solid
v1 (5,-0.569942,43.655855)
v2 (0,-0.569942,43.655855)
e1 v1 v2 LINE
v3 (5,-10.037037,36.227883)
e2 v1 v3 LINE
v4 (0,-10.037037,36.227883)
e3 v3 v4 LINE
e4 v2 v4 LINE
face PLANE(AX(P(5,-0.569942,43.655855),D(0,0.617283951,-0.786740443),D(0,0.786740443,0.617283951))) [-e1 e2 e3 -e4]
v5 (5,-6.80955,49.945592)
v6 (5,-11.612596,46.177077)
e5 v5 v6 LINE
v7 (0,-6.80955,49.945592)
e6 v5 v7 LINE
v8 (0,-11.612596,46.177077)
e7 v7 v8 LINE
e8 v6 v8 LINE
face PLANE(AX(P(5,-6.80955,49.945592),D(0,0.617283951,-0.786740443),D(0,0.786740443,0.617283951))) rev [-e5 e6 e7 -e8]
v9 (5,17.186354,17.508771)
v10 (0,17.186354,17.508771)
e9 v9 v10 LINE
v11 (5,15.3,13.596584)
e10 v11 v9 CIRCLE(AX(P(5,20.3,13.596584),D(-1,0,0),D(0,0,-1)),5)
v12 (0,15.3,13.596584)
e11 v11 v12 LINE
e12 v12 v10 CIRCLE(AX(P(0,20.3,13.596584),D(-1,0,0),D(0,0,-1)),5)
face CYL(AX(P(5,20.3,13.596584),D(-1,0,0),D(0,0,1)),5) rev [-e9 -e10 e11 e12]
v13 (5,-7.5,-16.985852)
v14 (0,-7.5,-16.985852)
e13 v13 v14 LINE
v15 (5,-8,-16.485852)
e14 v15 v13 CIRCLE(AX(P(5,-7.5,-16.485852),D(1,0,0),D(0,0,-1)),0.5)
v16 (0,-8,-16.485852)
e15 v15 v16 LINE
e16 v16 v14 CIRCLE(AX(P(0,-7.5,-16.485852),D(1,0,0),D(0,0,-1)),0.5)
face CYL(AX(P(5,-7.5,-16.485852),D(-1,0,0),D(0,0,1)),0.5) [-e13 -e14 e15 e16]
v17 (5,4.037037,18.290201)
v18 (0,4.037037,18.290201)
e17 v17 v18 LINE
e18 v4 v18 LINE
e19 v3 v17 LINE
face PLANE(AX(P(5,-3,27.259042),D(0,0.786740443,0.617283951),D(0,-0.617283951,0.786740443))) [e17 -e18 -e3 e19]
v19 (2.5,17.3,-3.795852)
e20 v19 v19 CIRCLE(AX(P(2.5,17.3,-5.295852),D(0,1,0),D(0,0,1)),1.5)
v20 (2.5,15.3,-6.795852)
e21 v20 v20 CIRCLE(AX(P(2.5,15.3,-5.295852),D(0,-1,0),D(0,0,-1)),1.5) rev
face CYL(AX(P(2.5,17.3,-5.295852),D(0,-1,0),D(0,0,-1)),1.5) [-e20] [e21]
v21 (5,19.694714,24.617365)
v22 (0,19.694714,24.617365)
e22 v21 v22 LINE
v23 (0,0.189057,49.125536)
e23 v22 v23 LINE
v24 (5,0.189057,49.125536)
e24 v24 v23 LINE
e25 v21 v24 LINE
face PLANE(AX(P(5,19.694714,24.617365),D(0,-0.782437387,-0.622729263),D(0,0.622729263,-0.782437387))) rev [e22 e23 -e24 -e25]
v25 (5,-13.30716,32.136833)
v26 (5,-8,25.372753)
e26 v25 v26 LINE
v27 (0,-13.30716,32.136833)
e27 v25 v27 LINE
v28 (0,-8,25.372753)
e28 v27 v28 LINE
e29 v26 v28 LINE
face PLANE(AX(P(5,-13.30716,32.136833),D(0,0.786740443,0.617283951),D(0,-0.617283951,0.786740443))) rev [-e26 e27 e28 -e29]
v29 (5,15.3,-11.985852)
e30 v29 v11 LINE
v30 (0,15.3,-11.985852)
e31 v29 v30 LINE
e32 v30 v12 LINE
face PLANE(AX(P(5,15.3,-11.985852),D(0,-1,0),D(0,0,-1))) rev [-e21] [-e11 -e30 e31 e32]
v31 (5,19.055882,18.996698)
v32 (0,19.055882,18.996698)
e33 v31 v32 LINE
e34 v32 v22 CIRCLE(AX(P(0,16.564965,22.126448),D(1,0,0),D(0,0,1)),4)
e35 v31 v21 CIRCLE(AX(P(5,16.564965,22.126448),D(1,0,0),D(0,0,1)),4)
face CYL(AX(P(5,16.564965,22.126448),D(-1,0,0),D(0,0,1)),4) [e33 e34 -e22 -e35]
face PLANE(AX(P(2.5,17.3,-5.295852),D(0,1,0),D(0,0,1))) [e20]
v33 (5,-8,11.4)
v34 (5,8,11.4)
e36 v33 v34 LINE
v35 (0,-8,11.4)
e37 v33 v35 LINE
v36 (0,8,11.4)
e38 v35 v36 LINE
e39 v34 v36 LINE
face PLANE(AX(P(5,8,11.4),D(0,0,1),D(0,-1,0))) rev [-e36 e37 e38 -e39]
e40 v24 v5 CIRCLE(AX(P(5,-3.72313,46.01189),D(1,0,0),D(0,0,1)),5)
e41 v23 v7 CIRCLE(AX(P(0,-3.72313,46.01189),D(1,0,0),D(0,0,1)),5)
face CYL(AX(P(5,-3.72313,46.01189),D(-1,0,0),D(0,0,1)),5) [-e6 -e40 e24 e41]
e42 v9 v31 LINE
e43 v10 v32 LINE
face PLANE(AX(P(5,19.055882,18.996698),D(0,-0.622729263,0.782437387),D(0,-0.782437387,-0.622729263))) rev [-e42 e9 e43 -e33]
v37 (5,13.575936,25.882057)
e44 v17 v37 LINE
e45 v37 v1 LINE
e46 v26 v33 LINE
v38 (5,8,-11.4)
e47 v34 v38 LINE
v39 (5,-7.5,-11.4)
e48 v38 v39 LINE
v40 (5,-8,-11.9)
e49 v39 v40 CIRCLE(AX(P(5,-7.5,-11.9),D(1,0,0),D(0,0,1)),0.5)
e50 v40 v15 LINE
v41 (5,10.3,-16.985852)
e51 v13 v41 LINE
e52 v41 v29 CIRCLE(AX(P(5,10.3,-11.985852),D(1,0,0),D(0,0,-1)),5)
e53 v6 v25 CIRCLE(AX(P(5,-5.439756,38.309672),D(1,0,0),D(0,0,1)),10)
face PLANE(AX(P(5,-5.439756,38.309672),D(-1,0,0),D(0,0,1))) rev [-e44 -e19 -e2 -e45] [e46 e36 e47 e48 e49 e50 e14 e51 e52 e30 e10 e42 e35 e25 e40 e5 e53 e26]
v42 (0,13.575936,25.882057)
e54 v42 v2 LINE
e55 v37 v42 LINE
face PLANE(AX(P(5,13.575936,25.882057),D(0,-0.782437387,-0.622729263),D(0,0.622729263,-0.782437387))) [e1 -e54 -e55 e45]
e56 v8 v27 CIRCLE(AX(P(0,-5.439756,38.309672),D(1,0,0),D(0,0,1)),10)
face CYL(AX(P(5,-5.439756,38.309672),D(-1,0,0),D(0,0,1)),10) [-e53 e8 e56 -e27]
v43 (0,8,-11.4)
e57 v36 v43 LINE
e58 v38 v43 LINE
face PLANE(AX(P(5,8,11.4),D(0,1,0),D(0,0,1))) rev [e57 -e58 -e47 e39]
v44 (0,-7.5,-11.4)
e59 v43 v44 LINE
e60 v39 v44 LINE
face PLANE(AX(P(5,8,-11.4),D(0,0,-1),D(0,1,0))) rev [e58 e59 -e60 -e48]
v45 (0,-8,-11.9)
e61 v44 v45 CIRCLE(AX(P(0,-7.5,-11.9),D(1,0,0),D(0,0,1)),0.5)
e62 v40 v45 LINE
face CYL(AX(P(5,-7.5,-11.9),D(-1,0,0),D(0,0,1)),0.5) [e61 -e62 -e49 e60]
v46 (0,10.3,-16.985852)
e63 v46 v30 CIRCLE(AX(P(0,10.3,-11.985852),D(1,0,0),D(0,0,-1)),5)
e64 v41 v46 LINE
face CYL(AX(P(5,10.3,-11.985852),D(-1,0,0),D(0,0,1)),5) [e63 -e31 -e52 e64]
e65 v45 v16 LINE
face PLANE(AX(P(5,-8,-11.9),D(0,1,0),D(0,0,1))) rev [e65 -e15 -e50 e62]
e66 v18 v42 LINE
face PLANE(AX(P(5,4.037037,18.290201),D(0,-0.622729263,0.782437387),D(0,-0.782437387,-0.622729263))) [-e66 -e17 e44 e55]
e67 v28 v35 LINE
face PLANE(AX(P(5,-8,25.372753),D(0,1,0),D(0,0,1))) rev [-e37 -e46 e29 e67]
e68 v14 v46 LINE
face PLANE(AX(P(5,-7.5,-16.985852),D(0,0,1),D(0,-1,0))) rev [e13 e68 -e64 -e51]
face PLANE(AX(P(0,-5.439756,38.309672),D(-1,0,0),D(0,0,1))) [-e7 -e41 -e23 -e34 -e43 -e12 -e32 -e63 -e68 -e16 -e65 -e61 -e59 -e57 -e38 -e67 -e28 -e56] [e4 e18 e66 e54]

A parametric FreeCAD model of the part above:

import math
import FreeCAD as App
import Part
import Sketcher
from FreeCAD import Vector

doc = App.newDocument("Part")
params = doc.addObject("Spreadsheet::Sheet", "Params")
for row, (alias, value) in enumerate([
    ("sketch1_radius", "5 mm"),
    ("sketch1_radius2", "4 mm"),
    ("sketch1_radius3", "10 mm"),
    ("sketch1_radius4", "0.5 mm"),
    ("sketch1_width", "16 mm"),
    ("pad1_length", "5 mm"),
    ("sketch2_diameter", "3 mm"),
    ("pad2_length", "2 mm"),
], start=1):
    params.set(f"A{row}", alias)
    params.set(f"B{row}", "=" + value)
    params.setAlias(f"B{row}", alias)

body = doc.addObject("PartDesign::Body", "Body")

sketch1 = body.newObject("Sketcher::SketchObject", "Sketch")
sketch1.AttachmentSupport = (doc.getObject("YZ_Plane"), [""])
sketch1.MapMode = "FlatFace"
sketch1.addGeometry(Part.LineSegment(Vector(-8, -11.9, 0), Vector(-8, -16.49, 0)), False)
sketch1.addGeometry(Part.ArcOfCircle(Part.Circle(Vector(-7.5, -16.49, 0), Vector(0, 0, 1), 0.5), math.radians(180), math.radians(270)), False)
sketch1.addGeometry(Part.LineSegment(Vector(-7.5, -16.99, 0), Vector(10.3, -16.99, 0)), False)
sketch1.addGeometry(Part.ArcOfCircle(Part.Circle(Vector(10.3, -11.99, 0), Vector(0, 0, 1), 5), math.radians(-90), math.radians(0)), False)
sketch1.addGeometry(Part.LineSegment(Vector(15.3, -11.99, 0), Vector(15.3, 13.6, 0)), False)
sketch1.addGeometry(Part.ArcOfCircle(Part.Circle(Vector(20.3, 13.6, 0), Vector(0, 0, 1), 5), math.radians(129), math.radians(180)), False)
sketch1.addGeometry(Part.LineSegment(Vector(17.19, 17.51, 0), Vector(19.06, 19, 0)), False)
sketch1.addGeometry(Part.ArcOfCircle(Part.Circle(Vector(16.56, 22.13, 0), Vector(0, 0, 1), 4), math.radians(-51), math.radians(39)), False)
sketch1.addGeometry(Part.LineSegment(Vector(19.69, 24.62, 0), Vector(0.19, 49.13, 0)), False)
sketch1.addGeometry(Part.ArcOfCircle(Part.Circle(Vector(-3.72, 46.01, 0), Vector(0, 0, 1), 5), math.radians(39), math.radians(128)), False)
sketch1.addGeometry(Part.LineSegment(Vector(-6.81, 49.95, 0), Vector(-11.61, 46.18, 0)), False)
sketch1.addGeometry(Part.ArcOfCircle(Part.Circle(Vector(-5.44, 38.31, 0), Vector(0, 0, 1), 10), math.radians(128), math.radians(218)), False)
sketch1.addGeometry(Part.LineSegment(Vector(-13.31, 32.14, 0), Vector(-8, 25.37, 0)), False)
sketch1.addGeometry(Part.LineSegment(Vector(-8, 25.37, 0), Vector(-8, 11.4, 0)), False)
sketch1.addGeometry(Part.LineSegment(Vector(-8, 11.4, 0), Vector(8, 11.4, 0)), False)
sketch1.addGeometry(Part.LineSegment(Vector(8, 11.4, 0), Vector(8, -11.4, 0)), False)
sketch1.addGeometry(Part.LineSegment(Vector(8, -11.4, 0), Vector(-7.5, -11.4, 0)), False)
sketch1.addGeometry(Part.ArcOfCircle(Part.Circle(Vector(-7.5, -11.9, 0), Vector(0, 0, 1), 0.5), math.radians(90), math.radians(180)), False)
sketch1.addGeometry(Part.LineSegment(Vector(4.04, 18.29, 0), Vector(-3, 27.26, 0)), False)
sketch1.addGeometry(Part.LineSegment(Vector(-3, 27.26, 0), Vector(-10.04, 36.23, 0)), False)
sketch1.addGeometry(Part.LineSegment(Vector(-10.04, 36.23, 0), Vector(-0.57, 43.66, 0)), False)
sketch1.addGeometry(Part.LineSegment(Vector(-0.57, 43.66, 0), Vector(13.58, 25.88, 0)), False)
sketch1.addGeometry(Part.LineSegment(Vector(13.58, 25.88, 0), Vector(4.04, 18.29, 0)), False)
sketch1.addConstraint(Sketcher.Constraint("Tangent", 0, 2, 1, 1))
sketch1.addConstraint(Sketcher.Constraint("Tangent", 1, 2, 2, 1))
sketch1.addConstraint(Sketcher.Constraint("Tangent", 2, 2, 3, 1))
sketch1.addConstraint(Sketcher.Constraint("Tangent", 3, 2, 4, 1))
sketch1.addConstraint(Sketcher.Constraint("Tangent", 4, 2, 5, 2))
sketch1.addConstraint(Sketcher.Constraint("Tangent", 5, 1, 6, 1))
sketch1.addConstraint(Sketcher.Constraint("Tangent", 6, 2, 7, 1))
sketch1.addConstraint(Sketcher.Constraint("Tangent", 7, 2, 8, 1))
sketch1.addConstraint(Sketcher.Constraint("Tangent", 8, 2, 9, 1))
sketch1.addConstraint(Sketcher.Constraint("Tangent", 9, 2, 10, 1))
sketch1.addConstraint(Sketcher.Constraint("Tangent", 10, 2, 11, 1))
sketch1.addConstraint(Sketcher.Constraint("Tangent", 11, 2, 12, 1))
sketch1.addConstraint(Sketcher.Constraint("Coincident", 12, 2, 13, 1))
sketch1.addConstraint(Sketcher.Constraint("Coincident", 13, 2, 14, 1))
sketch1.addConstraint(Sketcher.Constraint("Coincident", 14, 2, 15, 1))
sketch1.addConstraint(Sketcher.Constraint("Coincident", 15, 2, 16, 1))
sketch1.addConstraint(Sketcher.Constraint("Tangent", 16, 2, 17, 1))
sketch1.addConstraint(Sketcher.Constraint("Tangent", 17, 2, 0, 1))
sketch1.addConstraint(Sketcher.Constraint("Coincident", 18, 2, 19, 1))
sketch1.addConstraint(Sketcher.Constraint("Coincident", 19, 2, 20, 1))
sketch1.addConstraint(Sketcher.Constraint("Coincident", 20, 2, 21, 1))
sketch1.addConstraint(Sketcher.Constraint("Coincident", 21, 2, 22, 1))
sketch1.addConstraint(Sketcher.Constraint("Coincident", 22, 2, 18, 1))
sketch1.addConstraint(Sketcher.Constraint("Vertical", 0))
sketch1.addConstraint(Sketcher.Constraint("Horizontal", 2))
sketch1.addConstraint(Sketcher.Constraint("Vertical", 4))
sketch1.addConstraint(Sketcher.Constraint("Vertical", 13))
sketch1.addConstraint(Sketcher.Constraint("Horizontal", 14))
sketch1.addConstraint(Sketcher.Constraint("Vertical", 15))
sketch1.addConstraint(Sketcher.Constraint("Horizontal", 16))
sketch1.addConstraint(Sketcher.Constraint("Equal", 3, 5))
sketch1.addConstraint(Sketcher.Constraint("Equal", 5, 9))
sketch1.addConstraint(Sketcher.Constraint("Equal", 1, 17))
sketch1.addConstraint(Sketcher.Constraint("Symmetric", 13, 2, 15, 2, -1, 1))
sketch1.addConstraint(Sketcher.Constraint("Perpendicular", 6, 8))
sketch1.addConstraint(Sketcher.Constraint("Perpendicular", 10, 12))
sketch1.addConstraint(Sketcher.Constraint("Parallel", 12, 18))
sketch1.addConstraint(Sketcher.Constraint("Parallel", 18, 19))
sketch1.addConstraint(Sketcher.Constraint("Perpendicular", 19, 20))
sketch1.addConstraint(Sketcher.Constraint("Parallel", 8, 21))
sketch1.addConstraint(Sketcher.Constraint("Perpendicular", 21, 22))
sketch1.addConstraint(Sketcher.Constraint("Vertical", 0, 2, 12, 2))
sketch1.addConstraint(Sketcher.Constraint("Equal", 18, 19))
sketch1.addConstraint(Sketcher.Constraint("Radius", 3, 5.0))
sketch1.addConstraint(Sketcher.Constraint("Radius", 7, 4.0))
sketch1.addConstraint(Sketcher.Constraint("Radius", 11, 10.0))
sketch1.addConstraint(Sketcher.Constraint("Radius", 1, 0.5))
sketch1.addConstraint(Sketcher.Constraint("DistanceX", 14, 1, 14, 2, 16.0))
sketch1.addConstraint(Sketcher.Constraint("DistanceX", 2, 1, 2, 2, 17.8))
sketch1.addConstraint(Sketcher.Constraint("DistanceY", 15, 2, 15, 1, 22.8))
sketch1.addConstraint(Sketcher.Constraint("DistanceX", 18, 2, -1, 1, 3.0))
sketch1.addConstraint(Sketcher.Constraint("Distance", 18, 11.4))
sketch1.addConstraint(Sketcher.Constraint("DistanceX", 20, 2, 8, 2, 0.758999))
sketch1.addConstraint(Sketcher.Constraint("Distance", 12, 8.5976))
sketch1.addConstraint(Sketcher.Constraint("DistanceY", 0, 2, 0, 1, 4.585852))
sketch1.addConstraint(Sketcher.Constraint("DistanceY", -1, 1, 6, 2, 18.996698))
sketch1.addConstraint(Sketcher.Constraint("DistanceY", -1, 1, 22, 2, 18.290201))
sketch1.addConstraint(Sketcher.Constraint("DistanceY", 3, 3, 7, 3, 34.112299))
sketch1.addConstraint(Sketcher.Constraint("DistanceX", 22, 2, 21, 2, 9.538899))
sketch1.addConstraint(Sketcher.Constraint("DistanceY", 4, 1, 4, 2, 25.582436))
sketch1.addConstraint(Sketcher.Constraint("DistanceY", 13, 2, 13, 1, 13.972753))
sketch1.setExpression("Constraints[43]", "Params.sketch1_radius")
sketch1.setExpression("Constraints[44]", "Params.sketch1_radius2")
sketch1.setExpression("Constraints[45]", "Params.sketch1_radius3")
sketch1.setExpression("Constraints[46]", "Params.sketch1_radius4")
sketch1.setExpression("Constraints[47]", "Params.sketch1_width")
pad1 = body.newObject("PartDesign::Pad", "Pad")
pad1.Profile = sketch1
pad1.setExpression("Length", "Params.pad1_length")

sketch2 = body.newObject("Sketcher::SketchObject", "Sketch001")
sketch2.AttachmentSupport = (doc.getObject("XZ_Plane"), [""])
sketch2.MapMode = "FlatFace"
sketch2.AttachmentOffset = App.Placement(Vector(0, 0, -15.3), App.Rotation())
sketch2.addGeometry(Part.Circle(Vector(2.5, -5.3, 0), Vector(0, 0, 1), 1.5), False)
sketch2.addConstraint(Sketcher.Constraint("Diameter", 0, 3.0))
sketch2.addConstraint(Sketcher.Constraint("DistanceX", -1, 1, 0, 3, 2.5))
sketch2.addConstraint(Sketcher.Constraint("DistanceY", 0, 3, -1, 1, 5.295852))
sketch2.setExpression("Constraints[0]", "Params.sketch2_diameter")
pad2 = body.newObject("PartDesign::Pad", "Pad001")
pad2.Profile = sketch2
pad2.setExpression("Length", "Params.pad2_length")
pad2.Reversed = True

doc.recompute()
